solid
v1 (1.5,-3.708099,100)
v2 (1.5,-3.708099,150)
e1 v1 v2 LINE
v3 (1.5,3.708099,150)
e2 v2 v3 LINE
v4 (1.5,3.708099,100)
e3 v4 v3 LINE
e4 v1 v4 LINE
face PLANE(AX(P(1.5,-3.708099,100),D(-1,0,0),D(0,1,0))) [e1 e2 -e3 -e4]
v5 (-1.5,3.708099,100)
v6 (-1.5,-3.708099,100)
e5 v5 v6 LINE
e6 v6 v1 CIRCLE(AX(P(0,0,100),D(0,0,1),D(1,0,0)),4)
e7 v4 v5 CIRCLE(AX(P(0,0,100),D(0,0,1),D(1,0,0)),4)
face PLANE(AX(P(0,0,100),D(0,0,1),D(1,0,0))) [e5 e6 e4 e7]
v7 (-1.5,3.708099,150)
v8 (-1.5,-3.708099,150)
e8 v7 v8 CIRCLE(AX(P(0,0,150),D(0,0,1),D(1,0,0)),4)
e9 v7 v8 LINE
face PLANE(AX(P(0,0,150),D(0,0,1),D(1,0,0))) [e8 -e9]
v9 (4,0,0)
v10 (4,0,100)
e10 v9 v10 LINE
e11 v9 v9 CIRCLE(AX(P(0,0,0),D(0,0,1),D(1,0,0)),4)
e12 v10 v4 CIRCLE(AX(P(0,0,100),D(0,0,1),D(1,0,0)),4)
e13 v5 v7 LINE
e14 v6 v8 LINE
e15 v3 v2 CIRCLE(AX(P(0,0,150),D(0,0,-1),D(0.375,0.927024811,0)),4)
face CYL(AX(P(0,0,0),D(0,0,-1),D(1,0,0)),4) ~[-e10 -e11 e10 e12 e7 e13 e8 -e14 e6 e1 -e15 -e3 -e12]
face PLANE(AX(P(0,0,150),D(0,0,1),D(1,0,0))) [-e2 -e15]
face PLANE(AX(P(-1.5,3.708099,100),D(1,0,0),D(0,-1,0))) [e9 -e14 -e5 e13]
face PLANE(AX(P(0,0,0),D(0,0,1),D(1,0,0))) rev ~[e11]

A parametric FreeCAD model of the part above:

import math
import FreeCAD as App
import Part
import Sketcher
Q = App.Units.Quantity

doc = App.newDocument("Part")
body = doc.addObject("PartDesign::Body", "Body")

sketch1 = doc.addObject("Sketcher::SketchObject", "Sketch")
body.addObject(sketch1)
sketch1.AttachmentSupport = (doc.XY_Plane, [""])
sketch1.MapMode = "FlatFace"
sketch1.addGeometry(Part.Circle(App.Vector(0, 0, 0), App.Vector(0, 0, 1), 4), False)
sketch1.addConstraint([
    Sketcher.Constraint("Coincident", 0, 3, -1, 1),
    Sketcher.Constraint("Diameter", 0, Q("8 mm")),
])
pad1 = doc.addObject("PartDesign::Pad", "Pad")
body.addObject(pad1)
pad1.Profile = sketch1
pad1.Length = 100

sketch2 = doc.addObject("Sketcher::SketchObject", "Sketch001")
body.addObject(sketch2)
sketch2.AttachmentSupport = (doc.XY_Plane, [""])
sketch2.MapMode = "FlatFace"
sketch2.AttachmentOffset = App.Placement(App.Vector(0, 0, 100), App.Rotation())
sketch2.addGeometry([
    Part.ArcOfCircle(Part.Circle(App.Vector(0, 0, 0), App.Vector(0, 0, 1), 4), math.radians(-67.975687), math.radians(67.975687)),
    Part.LineSegment(App.Vector(1.5, 3.708099, 0), App.Vector(1.5, -3.708099, 0)),
    Part.LineSegment(App.Vector(-1.5, -3.708099, 0), App.Vector(-1.5, 3.708099, 0)),
    Part.ArcOfCircle(Part.Circle(App.Vector(0, 0, 0), App.Vector(0, 0, 1), 4), math.radians(112.024313), math.radians(247.975687)),
], False)
sketch2.addConstraint([
    Sketcher.Constraint("Coincident", 0, 1, 1, 2),
    Sketcher.Constraint("Coincident", 1, 1, 0, 2),
    Sketcher.Constraint("Coincident", 2, 1, 3, 2),
    Sketcher.Constraint("Coincident", 3, 1, 2, 2),
    Sketcher.Constraint("Vertical", 1),
    Sketcher.Constraint("Vertical", 2),
    Sketcher.Constraint("Coincident", 0, 3, -1, 1),
    Sketcher.Constraint("Coincident", 3, 3, -1, 1),
    Sketcher.Constraint("Equal", 0, 3),
    Sketcher.Constraint("Horizontal", 0, 1, 2, 1),
    Sketcher.Constraint("Radius", 0, Q("4 mm")),
    Sketcher.Constraint("DistanceX", 2, 1, 0, 1, Q("3 mm")),
])
pad2 = doc.addObject("PartDesign::Pad", "Pad001")
body.addObject(pad2)
pad2.Profile = sketch2
pad2.Length = 50

doc.recompute()
